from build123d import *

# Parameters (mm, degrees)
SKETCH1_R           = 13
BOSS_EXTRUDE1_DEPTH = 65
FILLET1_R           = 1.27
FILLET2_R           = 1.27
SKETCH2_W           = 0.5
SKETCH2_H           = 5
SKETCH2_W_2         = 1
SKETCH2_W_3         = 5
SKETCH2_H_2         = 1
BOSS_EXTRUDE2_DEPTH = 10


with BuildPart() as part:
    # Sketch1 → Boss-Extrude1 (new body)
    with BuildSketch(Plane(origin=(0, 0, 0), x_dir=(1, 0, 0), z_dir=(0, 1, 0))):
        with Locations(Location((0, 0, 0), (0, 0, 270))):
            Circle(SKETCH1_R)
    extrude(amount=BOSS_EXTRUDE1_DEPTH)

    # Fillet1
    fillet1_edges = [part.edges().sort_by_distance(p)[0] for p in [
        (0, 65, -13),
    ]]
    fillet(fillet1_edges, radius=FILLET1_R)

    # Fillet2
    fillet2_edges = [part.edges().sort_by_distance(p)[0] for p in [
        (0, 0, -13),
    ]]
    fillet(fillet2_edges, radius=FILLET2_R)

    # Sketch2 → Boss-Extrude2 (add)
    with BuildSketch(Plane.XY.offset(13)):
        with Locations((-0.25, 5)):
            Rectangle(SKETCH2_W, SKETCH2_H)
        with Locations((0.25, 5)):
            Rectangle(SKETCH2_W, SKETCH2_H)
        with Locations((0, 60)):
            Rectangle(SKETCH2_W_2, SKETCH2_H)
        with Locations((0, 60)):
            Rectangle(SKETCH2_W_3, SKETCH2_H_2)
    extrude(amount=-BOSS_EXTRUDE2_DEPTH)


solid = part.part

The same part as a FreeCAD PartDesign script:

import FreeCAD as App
import Part
import Sketcher

V = App.Vector
Q = App.Units.Quantity


def edges_at(feature, points):
    """Names of the edges that pass closest to the given points."""
    edges = feature.Shape.Edges
    near = lambda p: min(range(len(edges)), key=lambda i: edges[i].distToShape(Part.Vertex(*p))[0])
    return sorted({f"Edge{near(p) + 1}" for p in points})


def add_polygon(sketch, points):
    """Adds a closed chain of lines whose ends are joined by coincident constraints."""
    first, n = sketch.GeometryCount, len(points)
    for a, b in zip(points, points[1:] + points[:1]):
        sketch.addGeometry(Part.LineSegment(App.Vector(*a, 0), App.Vector(*b, 0)), False)
    for i in range(n):
        sketch.addConstraint(Sketcher.Constraint("Coincident", first + i, 2, first + (i + 1) % n, 1))

doc = App.newDocument("Part")
body = doc.addObject("PartDesign::Body", "Body")

sketch1 = body.newObject("Sketcher::SketchObject", "Sketch")
sketch1.AttachmentSupport = (doc.getObject("XZ_Plane"), [""])
sketch1.MapMode = "FlatFace"
sketch1.addGeometry(Part.Circle(V(0, 0, 0), V(0, 0, 1), 13), False)
sketch1.addConstraint([
    Sketcher.Constraint("Coincident", 0, 3, -1, 1),
    Sketcher.Constraint("Diameter", 0, Q("26 mm")),
])
pad1 = body.newObject("PartDesign::Pad", "Pad")
pad1.Profile = sketch1
pad1.Length = 65
pad1.Reversed = True
doc.recompute()

fillet = body.newObject("PartDesign::Fillet", "Fillet")
fillet.Base = (pad1, edges_at(pad1, [(0, 65, -13)]))
fillet.Radius = 1.27
doc.recompute()

fillet2 = body.newObject("PartDesign::Fillet", "Fillet001")
fillet2.Base = (fillet, edges_at(fillet, [(0, 0, -13)]))
fillet2.Radius = 1.27

sketch2 = body.newObject("Sketcher::SketchObject", "Sketch001")
sketch2.AttachmentSupport = (doc.getObject("XY_Plane"), [""])
sketch2.MapMode = "FlatFace"
sketch2.AttachmentOffset = App.Placement(V(0, 0, 13), App.Rotation())
add_polygon(sketch2, [(-0.5, 7.5), (-0.5, 2.5), (0.5, 2.5), (0.5, 7.5)])
add_polygon(sketch2, [(-0.5, 59.5), (-0.5, 57.5), (0.5, 57.5), (0.5, 59.5), (2.5, 59.5), (2.5, 60.5), (0.5, 60.5), (0.5, 62.5), (-0.5, 62.5), (-0.5, 60.5), (-2.5, 60.5), (-2.5, 59.5)])
sketch2.addConstraint([
    Sketcher.Constraint("Vertical", 0),
    Sketcher.Constraint("Horizontal", 1),
    Sketcher.Constraint("Vertical", 2),
    Sketcher.Constraint("Horizontal", 3),
    Sketcher.Constraint("Vertical", 4),
    Sketcher.Constraint("Horizontal", 5),
    Sketcher.Constraint("Vertical", 6),
    Sketcher.Constraint("Horizontal", 7),
    Sketcher.Constraint("Vertical", 8),
    Sketcher.Constraint("Horizontal", 9),
    Sketcher.Constraint("Vertical", 10),
    Sketcher.Constraint("Horizontal", 11),
    Sketcher.Constraint("Vertical", 12),
    Sketcher.Constraint("Horizontal", 13),
    Sketcher.Constraint("Vertical", 14),
    Sketcher.Constraint("Horizontal", 15),
    Sketcher.Constraint("Symmetric", 9, 2, 12, 2, -2),
    Sketcher.Constraint("Symmetric", 7, 2, 14, 2, -2),
    Sketcher.Constraint("Vertical", 3, 2, 4, 2),
    Sketcher.Constraint("Vertical", 2, 2, 5, 2),
    Sketcher.Constraint("Vertical", 6, 2, 9, 2),
    Sketcher.Constraint("Vertical", 4, 2, 11, 2),
    Sketcher.Constraint("Equal", 15, 4),
    Sketcher.Constraint("Equal", 11, 8),
    Sketcher.Constraint("Equal", 6, 10),
    Sketcher.Constraint("DistanceX", 1, 1, 1, 2, Q("1 mm")),
    Sketcher.Constraint("DistanceX", 7, 1, 7, 2, Q("2 mm")),
    Sketcher.Constraint("DistanceY", 0, 2, 0, 1, Q("5 mm")),
    Sketcher.Constraint("DistanceY", 3, 2, 4, 2, Q("50 mm")),
    Sketcher.Constraint("DistanceY", -1, 1, 0, 2, Q("2.5 mm")),
])
pad2 = body.newObject("PartDesign::Pad", "Pad001")
pad2.Profile = sketch2
pad2.Length = 10
pad2.Reversed = True

doc.recompute()
